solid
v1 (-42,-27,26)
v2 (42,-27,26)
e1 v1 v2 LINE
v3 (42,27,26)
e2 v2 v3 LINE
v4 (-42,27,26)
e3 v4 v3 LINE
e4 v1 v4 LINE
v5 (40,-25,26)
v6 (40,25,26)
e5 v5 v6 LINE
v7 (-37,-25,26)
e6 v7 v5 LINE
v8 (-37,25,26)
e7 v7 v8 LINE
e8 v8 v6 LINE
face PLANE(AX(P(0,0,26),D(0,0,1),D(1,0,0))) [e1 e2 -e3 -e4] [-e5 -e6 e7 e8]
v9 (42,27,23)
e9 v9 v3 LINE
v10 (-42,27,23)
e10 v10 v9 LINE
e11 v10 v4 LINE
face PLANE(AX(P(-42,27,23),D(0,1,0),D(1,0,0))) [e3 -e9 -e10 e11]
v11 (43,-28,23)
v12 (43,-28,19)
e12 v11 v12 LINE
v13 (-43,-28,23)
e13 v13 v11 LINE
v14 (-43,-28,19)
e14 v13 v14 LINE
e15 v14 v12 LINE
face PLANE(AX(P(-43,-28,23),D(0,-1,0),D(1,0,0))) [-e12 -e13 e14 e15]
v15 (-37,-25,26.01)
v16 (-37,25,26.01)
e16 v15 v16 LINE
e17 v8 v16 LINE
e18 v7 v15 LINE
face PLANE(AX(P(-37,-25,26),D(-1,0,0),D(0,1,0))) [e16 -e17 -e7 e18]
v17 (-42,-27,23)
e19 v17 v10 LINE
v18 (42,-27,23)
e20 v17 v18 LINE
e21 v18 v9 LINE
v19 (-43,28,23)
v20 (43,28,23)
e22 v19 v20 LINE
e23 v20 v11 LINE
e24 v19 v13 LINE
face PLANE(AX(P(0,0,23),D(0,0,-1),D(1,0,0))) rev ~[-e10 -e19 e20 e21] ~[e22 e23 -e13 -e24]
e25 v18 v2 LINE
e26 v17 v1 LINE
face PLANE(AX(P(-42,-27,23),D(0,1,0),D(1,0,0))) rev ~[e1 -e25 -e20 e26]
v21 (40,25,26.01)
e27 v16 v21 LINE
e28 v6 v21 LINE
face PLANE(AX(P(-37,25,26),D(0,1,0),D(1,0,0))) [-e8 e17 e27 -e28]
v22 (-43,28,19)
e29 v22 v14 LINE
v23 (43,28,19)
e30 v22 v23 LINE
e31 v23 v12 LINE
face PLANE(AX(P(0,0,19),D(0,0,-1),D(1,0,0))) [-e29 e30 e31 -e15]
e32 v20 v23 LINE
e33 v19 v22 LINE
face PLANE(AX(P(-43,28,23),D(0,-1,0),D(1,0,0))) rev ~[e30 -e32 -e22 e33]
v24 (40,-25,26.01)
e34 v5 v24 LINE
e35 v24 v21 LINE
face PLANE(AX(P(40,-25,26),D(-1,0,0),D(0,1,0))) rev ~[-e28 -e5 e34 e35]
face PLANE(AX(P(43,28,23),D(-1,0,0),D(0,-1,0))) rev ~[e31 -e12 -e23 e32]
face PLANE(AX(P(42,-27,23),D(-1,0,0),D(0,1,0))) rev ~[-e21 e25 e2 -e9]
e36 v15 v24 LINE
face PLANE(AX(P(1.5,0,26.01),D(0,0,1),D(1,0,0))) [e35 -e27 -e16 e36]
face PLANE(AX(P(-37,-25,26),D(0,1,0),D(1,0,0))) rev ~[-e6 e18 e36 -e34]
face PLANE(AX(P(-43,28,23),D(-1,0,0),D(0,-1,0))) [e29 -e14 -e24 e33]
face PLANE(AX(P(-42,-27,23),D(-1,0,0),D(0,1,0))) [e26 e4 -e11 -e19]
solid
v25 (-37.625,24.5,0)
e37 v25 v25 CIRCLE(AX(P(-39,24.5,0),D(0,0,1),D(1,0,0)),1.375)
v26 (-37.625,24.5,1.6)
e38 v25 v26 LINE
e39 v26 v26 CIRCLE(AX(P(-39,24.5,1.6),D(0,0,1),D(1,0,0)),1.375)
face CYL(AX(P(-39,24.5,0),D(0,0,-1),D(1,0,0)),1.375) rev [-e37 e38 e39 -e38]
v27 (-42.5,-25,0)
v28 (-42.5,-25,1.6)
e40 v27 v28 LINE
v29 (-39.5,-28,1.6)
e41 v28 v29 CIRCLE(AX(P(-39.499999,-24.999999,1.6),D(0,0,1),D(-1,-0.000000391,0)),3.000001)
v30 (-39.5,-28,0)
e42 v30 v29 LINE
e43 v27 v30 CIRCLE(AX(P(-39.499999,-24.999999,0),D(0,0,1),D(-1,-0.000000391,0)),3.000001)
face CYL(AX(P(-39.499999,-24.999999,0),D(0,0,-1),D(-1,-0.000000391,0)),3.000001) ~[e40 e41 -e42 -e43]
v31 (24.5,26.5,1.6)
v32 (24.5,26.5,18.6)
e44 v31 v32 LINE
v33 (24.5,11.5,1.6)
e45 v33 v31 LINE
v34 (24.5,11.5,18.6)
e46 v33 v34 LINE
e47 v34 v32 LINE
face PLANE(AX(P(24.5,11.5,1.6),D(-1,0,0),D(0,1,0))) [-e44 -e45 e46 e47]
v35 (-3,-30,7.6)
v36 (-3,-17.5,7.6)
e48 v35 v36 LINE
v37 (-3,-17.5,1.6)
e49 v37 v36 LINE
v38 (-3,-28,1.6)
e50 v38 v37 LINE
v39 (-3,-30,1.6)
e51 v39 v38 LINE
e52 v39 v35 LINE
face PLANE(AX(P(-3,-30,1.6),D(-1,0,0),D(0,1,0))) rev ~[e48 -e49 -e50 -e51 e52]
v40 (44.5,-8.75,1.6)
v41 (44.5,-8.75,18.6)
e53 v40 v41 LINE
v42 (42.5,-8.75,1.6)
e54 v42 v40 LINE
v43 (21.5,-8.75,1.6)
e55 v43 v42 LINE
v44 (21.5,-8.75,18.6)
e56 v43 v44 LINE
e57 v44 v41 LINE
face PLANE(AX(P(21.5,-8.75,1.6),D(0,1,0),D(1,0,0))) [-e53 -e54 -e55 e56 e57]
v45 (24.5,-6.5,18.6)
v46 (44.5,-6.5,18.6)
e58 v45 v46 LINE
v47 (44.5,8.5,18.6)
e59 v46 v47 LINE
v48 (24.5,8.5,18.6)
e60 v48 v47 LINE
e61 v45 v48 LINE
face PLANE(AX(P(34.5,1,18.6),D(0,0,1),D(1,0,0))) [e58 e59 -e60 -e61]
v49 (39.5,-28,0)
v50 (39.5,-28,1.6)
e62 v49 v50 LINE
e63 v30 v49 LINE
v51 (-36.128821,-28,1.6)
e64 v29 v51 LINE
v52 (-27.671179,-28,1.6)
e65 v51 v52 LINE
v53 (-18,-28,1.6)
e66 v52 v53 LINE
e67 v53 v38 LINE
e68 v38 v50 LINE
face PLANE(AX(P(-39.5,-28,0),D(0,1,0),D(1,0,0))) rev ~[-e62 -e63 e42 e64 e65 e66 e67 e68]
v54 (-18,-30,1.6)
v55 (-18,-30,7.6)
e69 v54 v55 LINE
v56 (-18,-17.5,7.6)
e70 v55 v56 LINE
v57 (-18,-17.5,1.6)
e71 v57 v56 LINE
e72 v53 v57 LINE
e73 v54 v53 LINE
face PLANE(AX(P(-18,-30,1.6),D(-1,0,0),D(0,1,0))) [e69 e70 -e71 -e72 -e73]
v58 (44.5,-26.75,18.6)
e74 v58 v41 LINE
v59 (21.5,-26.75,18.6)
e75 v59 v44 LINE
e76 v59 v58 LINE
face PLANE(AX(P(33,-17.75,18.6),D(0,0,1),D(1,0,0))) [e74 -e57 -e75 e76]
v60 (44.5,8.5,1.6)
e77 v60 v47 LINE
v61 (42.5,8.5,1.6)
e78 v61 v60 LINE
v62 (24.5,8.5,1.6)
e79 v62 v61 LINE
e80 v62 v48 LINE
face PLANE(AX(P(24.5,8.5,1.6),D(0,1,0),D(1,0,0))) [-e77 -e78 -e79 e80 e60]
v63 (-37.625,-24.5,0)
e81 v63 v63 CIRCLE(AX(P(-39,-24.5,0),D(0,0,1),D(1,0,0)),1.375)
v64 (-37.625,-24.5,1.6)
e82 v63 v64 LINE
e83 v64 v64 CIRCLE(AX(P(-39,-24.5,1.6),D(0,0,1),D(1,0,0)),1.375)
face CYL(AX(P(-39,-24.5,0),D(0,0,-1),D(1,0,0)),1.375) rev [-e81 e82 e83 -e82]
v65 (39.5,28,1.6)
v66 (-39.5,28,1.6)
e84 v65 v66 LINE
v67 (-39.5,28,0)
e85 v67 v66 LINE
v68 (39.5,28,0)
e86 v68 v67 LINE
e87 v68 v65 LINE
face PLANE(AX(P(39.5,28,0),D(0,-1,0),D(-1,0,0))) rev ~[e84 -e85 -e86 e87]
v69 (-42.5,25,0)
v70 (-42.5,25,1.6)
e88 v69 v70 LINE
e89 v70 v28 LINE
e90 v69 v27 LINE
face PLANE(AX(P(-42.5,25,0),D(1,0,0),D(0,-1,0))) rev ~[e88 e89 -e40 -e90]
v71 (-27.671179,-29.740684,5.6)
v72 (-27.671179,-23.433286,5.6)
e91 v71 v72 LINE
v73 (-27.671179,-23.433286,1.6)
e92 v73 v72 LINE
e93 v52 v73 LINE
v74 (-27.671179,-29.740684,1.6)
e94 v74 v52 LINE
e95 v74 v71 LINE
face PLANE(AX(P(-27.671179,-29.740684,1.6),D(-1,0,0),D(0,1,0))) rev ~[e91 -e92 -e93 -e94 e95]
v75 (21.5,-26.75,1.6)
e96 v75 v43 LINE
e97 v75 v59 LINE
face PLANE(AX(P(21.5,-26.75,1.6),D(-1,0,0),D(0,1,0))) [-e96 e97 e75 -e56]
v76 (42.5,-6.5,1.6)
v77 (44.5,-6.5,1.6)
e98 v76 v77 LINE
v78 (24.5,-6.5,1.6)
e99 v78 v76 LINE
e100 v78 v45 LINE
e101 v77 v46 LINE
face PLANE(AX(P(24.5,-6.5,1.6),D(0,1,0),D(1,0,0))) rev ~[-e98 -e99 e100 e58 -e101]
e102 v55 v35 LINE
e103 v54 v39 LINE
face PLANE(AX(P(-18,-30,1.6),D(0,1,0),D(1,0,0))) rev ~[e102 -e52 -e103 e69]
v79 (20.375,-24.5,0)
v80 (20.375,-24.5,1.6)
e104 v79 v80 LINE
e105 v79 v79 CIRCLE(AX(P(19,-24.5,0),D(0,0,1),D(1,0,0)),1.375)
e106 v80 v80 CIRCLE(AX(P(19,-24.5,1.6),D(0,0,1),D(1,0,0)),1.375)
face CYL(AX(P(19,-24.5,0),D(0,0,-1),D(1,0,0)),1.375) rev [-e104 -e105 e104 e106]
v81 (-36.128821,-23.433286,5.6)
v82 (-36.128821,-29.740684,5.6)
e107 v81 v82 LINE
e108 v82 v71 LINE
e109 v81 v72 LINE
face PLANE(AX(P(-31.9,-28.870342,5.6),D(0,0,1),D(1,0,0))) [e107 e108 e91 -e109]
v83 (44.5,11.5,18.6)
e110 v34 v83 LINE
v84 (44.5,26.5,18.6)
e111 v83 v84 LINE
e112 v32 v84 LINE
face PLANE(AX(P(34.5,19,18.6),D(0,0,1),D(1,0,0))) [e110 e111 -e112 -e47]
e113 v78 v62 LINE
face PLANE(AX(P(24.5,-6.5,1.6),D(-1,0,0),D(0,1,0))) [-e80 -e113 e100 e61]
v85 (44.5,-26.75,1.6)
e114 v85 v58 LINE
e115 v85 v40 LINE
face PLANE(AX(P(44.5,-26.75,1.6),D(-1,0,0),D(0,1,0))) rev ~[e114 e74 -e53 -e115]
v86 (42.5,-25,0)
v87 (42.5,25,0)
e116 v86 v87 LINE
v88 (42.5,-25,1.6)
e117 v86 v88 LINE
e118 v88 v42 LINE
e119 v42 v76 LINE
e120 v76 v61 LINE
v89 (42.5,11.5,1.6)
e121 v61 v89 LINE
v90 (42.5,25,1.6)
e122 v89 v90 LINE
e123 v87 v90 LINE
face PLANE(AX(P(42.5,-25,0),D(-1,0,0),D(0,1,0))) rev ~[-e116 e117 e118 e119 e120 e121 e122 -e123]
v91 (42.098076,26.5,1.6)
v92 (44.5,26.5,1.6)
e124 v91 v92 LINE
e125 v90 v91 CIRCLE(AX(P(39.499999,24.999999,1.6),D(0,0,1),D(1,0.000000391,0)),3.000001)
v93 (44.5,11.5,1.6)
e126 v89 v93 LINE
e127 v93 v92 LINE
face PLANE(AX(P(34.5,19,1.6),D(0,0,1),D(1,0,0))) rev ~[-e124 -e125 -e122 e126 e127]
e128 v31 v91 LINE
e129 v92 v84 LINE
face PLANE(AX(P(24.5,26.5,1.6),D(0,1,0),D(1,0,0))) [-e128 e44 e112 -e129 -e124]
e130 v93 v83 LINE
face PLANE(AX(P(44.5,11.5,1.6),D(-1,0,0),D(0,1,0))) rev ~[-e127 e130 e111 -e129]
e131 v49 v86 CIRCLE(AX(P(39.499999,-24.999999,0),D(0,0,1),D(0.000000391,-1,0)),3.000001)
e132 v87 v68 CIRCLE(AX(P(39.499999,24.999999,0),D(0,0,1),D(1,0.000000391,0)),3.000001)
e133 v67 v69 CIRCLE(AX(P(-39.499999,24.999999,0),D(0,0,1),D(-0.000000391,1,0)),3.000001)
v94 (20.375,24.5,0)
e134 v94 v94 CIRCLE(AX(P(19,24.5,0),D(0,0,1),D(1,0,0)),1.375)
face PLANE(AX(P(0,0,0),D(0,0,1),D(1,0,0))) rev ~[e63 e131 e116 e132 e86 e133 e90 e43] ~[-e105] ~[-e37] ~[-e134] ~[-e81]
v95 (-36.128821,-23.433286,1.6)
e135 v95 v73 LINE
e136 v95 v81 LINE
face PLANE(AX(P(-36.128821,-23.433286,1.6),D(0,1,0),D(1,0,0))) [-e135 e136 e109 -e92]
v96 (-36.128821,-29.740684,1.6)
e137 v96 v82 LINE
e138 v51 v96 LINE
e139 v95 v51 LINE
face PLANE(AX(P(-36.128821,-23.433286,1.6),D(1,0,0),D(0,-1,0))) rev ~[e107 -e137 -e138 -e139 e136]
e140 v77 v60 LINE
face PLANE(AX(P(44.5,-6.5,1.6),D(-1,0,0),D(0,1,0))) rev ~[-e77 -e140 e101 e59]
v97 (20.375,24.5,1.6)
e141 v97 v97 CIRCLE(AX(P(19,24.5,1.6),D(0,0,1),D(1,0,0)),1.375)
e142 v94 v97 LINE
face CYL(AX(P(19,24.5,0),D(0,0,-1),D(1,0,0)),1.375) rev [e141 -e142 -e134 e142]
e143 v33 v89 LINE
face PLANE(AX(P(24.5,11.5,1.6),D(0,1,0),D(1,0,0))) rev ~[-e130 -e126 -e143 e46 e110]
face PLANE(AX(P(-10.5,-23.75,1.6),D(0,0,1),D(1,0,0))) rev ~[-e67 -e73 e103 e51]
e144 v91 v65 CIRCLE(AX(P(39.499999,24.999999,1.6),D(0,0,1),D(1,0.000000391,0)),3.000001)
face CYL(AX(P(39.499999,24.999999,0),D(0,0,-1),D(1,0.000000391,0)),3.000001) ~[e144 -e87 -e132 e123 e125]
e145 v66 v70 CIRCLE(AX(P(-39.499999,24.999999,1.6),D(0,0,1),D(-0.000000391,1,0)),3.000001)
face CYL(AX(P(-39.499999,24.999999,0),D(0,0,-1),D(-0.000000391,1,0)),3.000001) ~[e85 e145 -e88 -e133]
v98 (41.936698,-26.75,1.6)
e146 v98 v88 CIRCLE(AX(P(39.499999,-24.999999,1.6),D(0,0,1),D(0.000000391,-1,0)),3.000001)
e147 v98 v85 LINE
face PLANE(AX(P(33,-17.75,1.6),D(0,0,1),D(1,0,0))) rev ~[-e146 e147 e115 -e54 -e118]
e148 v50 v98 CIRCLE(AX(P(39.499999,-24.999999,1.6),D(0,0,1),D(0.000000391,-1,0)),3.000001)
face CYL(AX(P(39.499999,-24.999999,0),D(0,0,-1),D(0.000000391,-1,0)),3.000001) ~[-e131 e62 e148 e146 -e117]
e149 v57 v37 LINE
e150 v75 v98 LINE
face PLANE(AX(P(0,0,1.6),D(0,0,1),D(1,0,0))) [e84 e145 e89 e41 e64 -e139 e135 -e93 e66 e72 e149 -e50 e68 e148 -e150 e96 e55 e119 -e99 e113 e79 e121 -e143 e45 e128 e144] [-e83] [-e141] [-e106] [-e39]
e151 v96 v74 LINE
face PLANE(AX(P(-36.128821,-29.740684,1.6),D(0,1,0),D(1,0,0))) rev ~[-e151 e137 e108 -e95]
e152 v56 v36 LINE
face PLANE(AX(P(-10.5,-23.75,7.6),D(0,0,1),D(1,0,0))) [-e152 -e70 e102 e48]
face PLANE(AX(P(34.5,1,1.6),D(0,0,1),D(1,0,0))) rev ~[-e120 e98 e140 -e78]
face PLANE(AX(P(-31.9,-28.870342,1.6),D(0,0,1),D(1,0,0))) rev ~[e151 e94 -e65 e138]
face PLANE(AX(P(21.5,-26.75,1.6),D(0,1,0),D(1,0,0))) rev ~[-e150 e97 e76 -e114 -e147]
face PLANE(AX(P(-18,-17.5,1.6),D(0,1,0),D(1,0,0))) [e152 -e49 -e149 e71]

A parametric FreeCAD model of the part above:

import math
import FreeCAD as App
import Part
import Sketcher


def add_polygon(sketch, points):
    """Adds a closed chain of lines whose ends are joined by coincident constraints."""
    first, n = sketch.GeometryCount, len(points)
    for a, b in zip(points, points[1:] + points[:1]):
        sketch.addGeometry(Part.LineSegment(App.Vector(*a, 0), App.Vector(*b, 0)), False)
    for i in range(n):
        sketch.addConstraint(Sketcher.Constraint("Coincident", first + i, 2, first + (i + 1) % n, 1))

doc = App.newDocument("Part")
body = doc.addObject("PartDesign::Body", "Body")

sketch1 = body.newObject("Sketcher::SketchObject", "Sketch")
sketch1.AttachmentSupport = (doc.getObject("XY_Plane"), [""])
sketch1.MapMode = "FlatFace"
sketch1.addGeometry([
    Part.LineSegment(App.Vector(-39.5, -28, 0), App.Vector(39.5, -28, 0)),
    Part.ArcOfCircle(Part.Circle(App.Vector(39.5, -25, 0), App.Vector(0, 0, 1), 3), math.radians(-90), math.radians(0)),
    Part.LineSegment(App.Vector(42.5, -25, 0), App.Vector(42.5, 25, 0)),
    Part.ArcOfCircle(Part.Circle(App.Vector(39.5, 25, 0), App.Vector(0, 0, 1), 3), math.radians(0), math.radians(90)),
    Part.LineSegment(App.Vector(39.5, 28, 0), App.Vector(-39.5, 28, 0)),
    Part.ArcOfCircle(Part.Circle(App.Vector(-39.5, 25, 0), App.Vector(0, 0, 1), 3), math.radians(90), math.radians(180)),
    Part.LineSegment(App.Vector(-42.5, 25, 0), App.Vector(-42.5, -25, 0)),
    Part.ArcOfCircle(Part.Circle(App.Vector(-39.5, -25, 0), App.Vector(0, 0, 1), 3), math.radians(-180), math.radians(-90)),
    Part.Circle(App.Vector(-39, -24.5, 0), App.Vector(0, 0, 1), 1.4),
    Part.Circle(App.Vector(19, -24.5, 0), App.Vector(0, 0, 1), 1.4),
    Part.Circle(App.Vector(-39, 24.5, 0), App.Vector(0, 0, 1), 1.4),
    Part.Circle(App.Vector(19, 24.5, 0), App.Vector(0, 0, 1), 1.4),
], False)
sketch1.addConstraint([
    Sketcher.Constraint("Tangent", 0, 2, 1, 1),
    Sketcher.Constraint("Tangent", 1, 2, 2, 1),
    Sketcher.Constraint("Tangent", 2, 2, 3, 1),
    Sketcher.Constraint("Tangent", 3, 2, 4, 1),
    Sketcher.Constraint("Tangent", 4, 2, 5, 1),
    Sketcher.Constraint("Tangent", 5, 2, 6, 1),
    Sketcher.Constraint("Tangent", 6, 2, 7, 1),
    Sketcher.Constraint("Tangent", 7, 2, 0, 1),
    Sketcher.Constraint("Horizontal", 0),
    Sketcher.Constraint("Vertical", 2),
    Sketcher.Constraint("Horizontal", 4),
    Sketcher.Constraint("Vertical", 6),
    Sketcher.Constraint("Equal", 1, 3),
    Sketcher.Constraint("Equal", 3, 5),
    Sketcher.Constraint("Equal", 5, 7),
    Sketcher.Constraint("Equal", 8, 9),
    Sketcher.Constraint("Equal", 9, 10),
    Sketcher.Constraint("Equal", 10, 11),
    Sketcher.Constraint("Symmetric", 1, 3, 5, 3, -1, 1),
    Sketcher.Constraint("Symmetric", 8, 3, 10, 3, -1),
    Sketcher.Constraint("Symmetric", 9, 3, 11, 3, -1),
    Sketcher.Constraint("Horizontal", 8, 3, 9, 3),
    Sketcher.Constraint("Radius", 1, 3.000001),
    Sketcher.Constraint("Diameter", 8, 2.75),
    Sketcher.Constraint("DistanceX", 0, 1, 0, 2, 79.0),
    Sketcher.Constraint("DistanceY", 2, 1, 2, 2, 50.0),
    Sketcher.Constraint("DistanceX", 8, 3, -1, 1, 39.0),
    Sketcher.Constraint("DistanceX", -1, 1, 9, 3, 19.0),
    Sketcher.Constraint("DistanceY", 8, 3, 10, 3, 49.0),
])
pad1 = body.newObject("PartDesign::Pad", "Pad")
pad1.Profile = sketch1
pad1.Length = 1.6

sketch2 = body.newObject("Sketcher::SketchObject", "Sketch001")
sketch2.AttachmentSupport = (doc.getObject("XY_Plane"), [""])
sketch2.MapMode = "FlatFace"
sketch2.AttachmentOffset = App.Placement(App.Vector(0, 0, 1.6), App.Rotation())
add_polygon(sketch2, [(-36, -30), (-28, -30), (-28, -23), (-36, -23)])
sketch2.addConstraint([
    Sketcher.Constraint("Horizontal", 0),
    Sketcher.Constraint("Vertical", 1),
    Sketcher.Constraint("Horizontal", 2),
    Sketcher.Constraint("Vertical", 3),
    Sketcher.Constraint("DistanceY", 1, 1, 1, 2, 6.307398),
    Sketcher.Constraint("DistanceX", 0, 1, 0, 2, 8.457642),
    Sketcher.Constraint("DistanceX", 0, 2, -1, 1, 27.671179),
    Sketcher.Constraint("DistanceY", 0, 2, -1, 1, 29.740684),
])
pad2 = body.newObject("PartDesign::Pad", "Pad001")
pad2.Profile = sketch2
pad2.Length = 4

sketch3 = body.newObject("Sketcher::SketchObject", "Sketch002")
sketch3.AttachmentSupport = (doc.getObject("XY_Plane"), [""])
sketch3.MapMode = "FlatFace"
sketch3.AttachmentOffset = App.Placement(App.Vector(0, 0, 1.6), App.Rotation())
add_polygon(sketch3, [(24, 26), (24, 12), (44, 12), (44, 26)])
add_polygon(sketch3, [(24, 8), (24, -6), (44, -6), (44, 8)])
add_polygon(sketch3, [(22, -9), (22, -27), (44, -27), (44, -9)])
sketch3.addConstraint([
    Sketcher.Constraint("Vertical", 0),
    Sketcher.Constraint("Horizontal", 1),
    Sketcher.Constraint("Vertical", 2),
    Sketcher.Constraint("Horizontal", 3),
    Sketcher.Constraint("Vertical", 4),
    Sketcher.Constraint("Horizontal", 5),
    Sketcher.Constraint("Vertical", 6),
    Sketcher.Constraint("Horizontal", 7),
    Sketcher.Constraint("Vertical", 8),
    Sketcher.Constraint("Horizontal", 9),
    Sketcher.Constraint("Vertical", 10),
    Sketcher.Constraint("Horizontal", 11),
    Sketcher.Constraint("Vertical", 3, 2, 4, 2),
    Sketcher.Constraint("Vertical", 2, 2, 5, 2),
    Sketcher.Constraint("Vertical", 6, 2, 9, 2),
    Sketcher.Constraint("Equal", 2, 4),
    Sketcher.Constraint("DistanceX", 1, 1, 1, 2, 20.0),
    Sketcher.Constraint("DistanceX", 9, 1, 9, 2, 23.0),
    Sketcher.Constraint("DistanceY", 0, 2, 0, 1, 15.0),
    Sketcher.Constraint("DistanceY", 8, 2, 8, 1, 18.0),
    Sketcher.Constraint("DistanceY", 4, 2, 0, 2, 18.0),
    Sketcher.Constraint("DistanceX", -1, 1, 0, 2, 24.5),
    Sketcher.Constraint("DistanceY", -1, 1, 0, 2, 11.5),
    Sketcher.Constraint("DistanceY", 8, 2, -1, 1, 26.75),
])
pad3 = body.newObject("PartDesign::Pad", "Pad002")
pad3.Profile = sketch3
pad3.Length = 17

sketch4 = body.newObject("Sketcher::SketchObject", "Sketch003")
sketch4.AttachmentSupport = (doc.getObject("XY_Plane"), [""])
sketch4.MapMode = "FlatFace"
sketch4.AttachmentOffset = App.Placement(App.Vector(0, 0, 1.6), App.Rotation())
add_polygon(sketch4, [(-18, -18), (-18, -30), (-3, -30), (-3, -18)])
sketch4.addConstraint([
    Sketcher.Constraint("Vertical", 0),
    Sketcher.Constraint("Horizontal", 1),
    Sketcher.Constraint("Vertical", 2),
    Sketcher.Constraint("Horizontal", 3),
    Sketcher.Constraint("DistanceX", 1, 1, 1, 2, 15.0),
    Sketcher.Constraint("DistanceY", 0, 2, 0, 1, 12.5),
    Sketcher.Constraint("DistanceX", 0, 2, -1, 1, 18.0),
    Sketcher.Constraint("DistanceY", 0, 2, -1, 1, 30.0),
])
pad4 = body.newObject("PartDesign::Pad", "Pad003")
pad4.Profile = sketch4
pad4.Length = 6
body2 = doc.addObject("PartDesign::Body", "Body001")

sketch5 = body2.newObject("Sketcher::SketchObject", "Sketch004")
sketch5.AttachmentSupport = (doc.getObject("XY_Plane001"), [""])
sketch5.MapMode = "FlatFace"
sketch5.AttachmentOffset = App.Placement(App.Vector(0, 0, 23), App.Rotation())
add_polygon(sketch5, [(-42, 27), (-42, -27), (42, -27), (42, 27)])
sketch5.addConstraint([
    Sketcher.Constraint("Vertical", 0),
    Sketcher.Constraint("Horizontal", 1),
    Sketcher.Constraint("Vertical", 2),
    Sketcher.Constraint("Horizontal", 3),
    Sketcher.Constraint("Symmetric", 0, 2, 2, 2, -1, 1),
    Sketcher.Constraint("DistanceX", 1, 1, 1, 2, 84.0),
    Sketcher.Constraint("DistanceY", 0, 2, 0, 1, 54.0),
])
pad5 = body2.newObject("PartDesign::Pad", "Pad004")
pad5.Profile = sketch5
pad5.Length = 3

sketch6 = body2.newObject("Sketcher::SketchObject", "Sketch005")
sketch6.AttachmentSupport = (doc.getObject("XY_Plane001"), [""])
sketch6.MapMode = "FlatFace"
sketch6.AttachmentOffset = App.Placement(App.Vector(0, 0, 26), App.Rotation())
add_polygon(sketch6, [(-37, 25), (-37, -25), (40, -25), (40, 25)])
sketch6.addConstraint([
    Sketcher.Constraint("Vertical", 0),
    Sketcher.Constraint("Horizontal", 1),
    Sketcher.Constraint("Vertical", 2),
    Sketcher.Constraint("Horizontal", 3),
    Sketcher.Constraint("DistanceX", 1, 1, 1, 2, 77.0),
    Sketcher.Constraint("DistanceY", 0, 2, 0, 1, 50.0),
    Sketcher.Constraint("DistanceX", 0, 2, -1, 1, 37.0),
    Sketcher.Constraint("DistanceY", 0, 2, -1, 1, 25.0),
])
pad6 = body2.newObject("PartDesign::Pad", "Pad005")
pad6.Profile = sketch6
pad6.Length = 0.01

sketch7 = body2.newObject("Sketcher::SketchObject", "Sketch006")
sketch7.AttachmentSupport = (doc.getObject("XY_Plane001"), [""])
sketch7.MapMode = "FlatFace"
sketch7.AttachmentOffset = App.Placement(App.Vector(0, 0, 23), App.Rotation())
add_polygon(sketch7, [(-43, -28), (-43, 28), (43, 28), (43, -28)])
sketch7.addConstraint([
    Sketcher.Constraint("Vertical", 0),
    Sketcher.Constraint("Horizontal", 1),
    Sketcher.Constraint("Vertical", 2),
    Sketcher.Constraint("Horizontal", 3),
    Sketcher.Constraint("Symmetric", 0, 2, 2, 2, -1, 1),
    Sketcher.Constraint("DistanceX", 1, 1, 1, 2, 86.0),
    Sketcher.Constraint("DistanceY", 0, 1, 0, 2, 56.0),
])
pad7 = body2.newObject("PartDesign::Pad", "Pad006")
pad7.Profile = sketch7
pad7.Length = 4
pad7.Reversed = True

doc.recompute()
